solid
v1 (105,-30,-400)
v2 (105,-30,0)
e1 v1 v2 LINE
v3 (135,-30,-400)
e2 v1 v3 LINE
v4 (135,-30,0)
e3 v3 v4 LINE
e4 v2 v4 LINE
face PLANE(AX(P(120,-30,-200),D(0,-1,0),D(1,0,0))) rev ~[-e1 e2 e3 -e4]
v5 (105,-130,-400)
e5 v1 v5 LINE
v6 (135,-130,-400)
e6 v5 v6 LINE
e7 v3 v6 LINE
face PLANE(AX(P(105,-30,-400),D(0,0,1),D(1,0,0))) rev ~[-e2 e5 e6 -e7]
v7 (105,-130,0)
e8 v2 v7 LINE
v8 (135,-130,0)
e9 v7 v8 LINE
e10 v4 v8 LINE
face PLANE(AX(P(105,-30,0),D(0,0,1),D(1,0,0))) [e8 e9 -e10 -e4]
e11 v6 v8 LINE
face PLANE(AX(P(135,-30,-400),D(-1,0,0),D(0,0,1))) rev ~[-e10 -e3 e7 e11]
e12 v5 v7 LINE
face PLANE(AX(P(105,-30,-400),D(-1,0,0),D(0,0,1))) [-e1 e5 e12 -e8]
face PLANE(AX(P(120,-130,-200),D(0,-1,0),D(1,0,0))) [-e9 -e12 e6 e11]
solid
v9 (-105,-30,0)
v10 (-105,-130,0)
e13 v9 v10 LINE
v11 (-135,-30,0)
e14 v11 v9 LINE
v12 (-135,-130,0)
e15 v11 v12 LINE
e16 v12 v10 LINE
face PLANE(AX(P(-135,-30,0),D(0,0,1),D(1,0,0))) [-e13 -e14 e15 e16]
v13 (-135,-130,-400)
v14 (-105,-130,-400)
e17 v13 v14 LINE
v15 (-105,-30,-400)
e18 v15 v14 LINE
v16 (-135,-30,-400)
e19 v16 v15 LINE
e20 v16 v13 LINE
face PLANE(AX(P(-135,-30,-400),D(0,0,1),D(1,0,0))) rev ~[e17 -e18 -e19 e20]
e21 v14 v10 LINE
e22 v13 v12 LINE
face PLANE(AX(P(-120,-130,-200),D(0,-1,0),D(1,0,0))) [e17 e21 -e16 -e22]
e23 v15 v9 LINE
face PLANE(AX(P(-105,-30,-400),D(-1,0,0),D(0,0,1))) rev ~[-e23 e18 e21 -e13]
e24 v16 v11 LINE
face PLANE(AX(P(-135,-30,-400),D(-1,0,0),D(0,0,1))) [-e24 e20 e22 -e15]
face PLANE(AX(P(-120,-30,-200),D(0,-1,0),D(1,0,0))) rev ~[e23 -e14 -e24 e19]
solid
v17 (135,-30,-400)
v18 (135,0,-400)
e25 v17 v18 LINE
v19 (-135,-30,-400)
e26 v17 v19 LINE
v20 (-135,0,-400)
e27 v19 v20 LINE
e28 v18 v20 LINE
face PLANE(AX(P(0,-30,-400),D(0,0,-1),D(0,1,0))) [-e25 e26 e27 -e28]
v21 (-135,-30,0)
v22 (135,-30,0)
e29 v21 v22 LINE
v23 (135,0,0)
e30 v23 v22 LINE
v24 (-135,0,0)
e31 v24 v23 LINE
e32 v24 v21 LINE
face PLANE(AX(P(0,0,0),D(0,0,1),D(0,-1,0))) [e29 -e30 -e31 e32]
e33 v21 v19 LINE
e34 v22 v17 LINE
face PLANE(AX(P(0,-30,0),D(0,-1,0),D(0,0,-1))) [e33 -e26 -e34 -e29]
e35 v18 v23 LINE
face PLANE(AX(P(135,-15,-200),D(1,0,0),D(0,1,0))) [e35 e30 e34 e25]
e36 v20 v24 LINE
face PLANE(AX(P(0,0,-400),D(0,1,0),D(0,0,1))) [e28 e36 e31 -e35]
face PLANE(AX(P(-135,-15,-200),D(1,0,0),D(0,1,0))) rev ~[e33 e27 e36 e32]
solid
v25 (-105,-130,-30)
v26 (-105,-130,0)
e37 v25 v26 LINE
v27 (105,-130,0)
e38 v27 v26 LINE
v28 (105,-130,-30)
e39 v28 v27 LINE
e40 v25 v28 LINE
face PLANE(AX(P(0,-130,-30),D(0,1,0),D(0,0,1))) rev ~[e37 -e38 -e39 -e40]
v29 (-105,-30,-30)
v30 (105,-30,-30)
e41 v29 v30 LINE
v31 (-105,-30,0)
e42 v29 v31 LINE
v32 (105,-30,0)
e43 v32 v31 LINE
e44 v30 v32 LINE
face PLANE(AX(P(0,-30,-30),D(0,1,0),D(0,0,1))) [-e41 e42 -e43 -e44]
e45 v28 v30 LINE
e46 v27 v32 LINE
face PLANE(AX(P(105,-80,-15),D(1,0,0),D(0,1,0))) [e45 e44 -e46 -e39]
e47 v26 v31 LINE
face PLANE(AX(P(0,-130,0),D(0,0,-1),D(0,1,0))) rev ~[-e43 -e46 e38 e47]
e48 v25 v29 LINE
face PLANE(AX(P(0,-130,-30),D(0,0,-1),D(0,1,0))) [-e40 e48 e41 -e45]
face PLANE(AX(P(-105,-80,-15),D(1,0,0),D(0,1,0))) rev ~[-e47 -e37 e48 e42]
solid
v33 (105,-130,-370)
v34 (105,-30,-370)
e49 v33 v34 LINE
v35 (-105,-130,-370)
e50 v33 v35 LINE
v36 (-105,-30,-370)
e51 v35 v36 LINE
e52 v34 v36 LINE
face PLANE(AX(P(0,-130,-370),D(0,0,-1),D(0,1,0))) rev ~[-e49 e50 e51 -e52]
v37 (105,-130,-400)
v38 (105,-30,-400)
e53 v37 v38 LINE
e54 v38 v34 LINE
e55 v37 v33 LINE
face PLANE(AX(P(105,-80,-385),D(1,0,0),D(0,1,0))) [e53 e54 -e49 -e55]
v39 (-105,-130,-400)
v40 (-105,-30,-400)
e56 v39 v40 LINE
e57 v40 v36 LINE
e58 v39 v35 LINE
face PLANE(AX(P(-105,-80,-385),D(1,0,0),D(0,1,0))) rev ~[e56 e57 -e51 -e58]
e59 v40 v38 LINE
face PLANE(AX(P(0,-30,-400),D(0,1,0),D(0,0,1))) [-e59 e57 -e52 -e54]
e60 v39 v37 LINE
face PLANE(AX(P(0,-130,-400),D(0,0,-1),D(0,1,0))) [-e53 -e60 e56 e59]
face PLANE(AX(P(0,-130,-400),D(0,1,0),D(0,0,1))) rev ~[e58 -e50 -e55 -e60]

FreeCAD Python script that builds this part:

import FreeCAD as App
import Part
import Sketcher
Q = App.Units.Quantity


def add_polygon(sketch, points):
    """Adds a closed chain of lines whose ends are joined by coincident constraints."""
    first, n = sketch.GeometryCount, len(points)
    for a, b in zip(points, points[1:] + points[:1]):
        sketch.addGeometry(Part.LineSegment(App.Vector(*a, 0), App.Vector(*b, 0)), False)
    for i in range(n):
        sketch.addConstraint(Sketcher.Constraint("Coincident", first + i, 2, first + (i + 1) % n, 1))

doc = App.newDocument("Part")
params = doc.addObject("Spreadsheet::Sheet", "Params")
for row, (alias, value) in enumerate([
    ("sketch1_width", "30 mm"),
    ("sketch1_height", "400 mm"),
    ("pad1_length", "270 mm"),
    ("sketch2_width", "100 mm"),
    ("sketch2_height", "30 mm"),
    ("pad2_length", "210 mm"),
    ("sketch3_width", "100 mm"),
    ("sketch3_height", "30 mm"),
    ("pad3_length", "210 mm"),
    ("sketch4_width", "30 mm"),
    ("sketch4_height", "400 mm"),
    ("pad4_length", "100 mm"),
    ("sketch5_width", "30 mm"),
    ("sketch5_height", "400 mm"),
    ("pad5_length", "100 mm"),
], start=1):
    params.set(f"A{row}", alias)
    params.set(f"B{row}", "=" + value)
    params.setAlias(f"B{row}", alias)

body = doc.addObject("PartDesign::Body", "Body")

sketch1 = body.newObject("Sketcher::SketchObject", "Sketch")
sketch1.AttachmentSupport = (doc.getObject("YZ_Plane"), [""])
sketch1.MapMode = "FlatFace"
add_polygon(sketch1, [(0, -400), (0, 0), (-30, 0), (-30, -400)])
sketch1.addConstraint([
    Sketcher.Constraint("Vertical", 0),
    Sketcher.Constraint("Horizontal", 1),
    Sketcher.Constraint("Vertical", 2),
    Sketcher.Constraint("Horizontal", 3),
    Sketcher.Constraint("Coincident", 0, 2, -1, 1),
    Sketcher.Constraint("DistanceX", 1, 2, 1, 1, Q("30 mm")),
    Sketcher.Constraint("DistanceY", 0, 1, 0, 2, Q("400 mm")),
])
sketch1.setExpression("Constraints[9]", "Params.sketch1_width")
sketch1.setExpression("Constraints[10]", "Params.sketch1_height")
pad1 = body.newObject("PartDesign::Pad", "Pad")
pad1.Profile = sketch1
pad1.setExpression("Length", "Params.pad1_length")
pad1.Midplane = True
body2 = doc.addObject("PartDesign::Body", "Body001")

sketch2 = body2.newObject("Sketcher::SketchObject", "Sketch001")
sketch2.AttachmentSupport = (doc.getObject("YZ_Plane001"), [""])
sketch2.MapMode = "FlatFace"
add_polygon(sketch2, [(-130, 0), (-130, -30), (-30, -30), (-30, 0)])
sketch2.addConstraint([
    Sketcher.Constraint("Vertical", 0),
    Sketcher.Constraint("Horizontal", 1),
    Sketcher.Constraint("Vertical", 2),
    Sketcher.Constraint("Horizontal", 3),
    Sketcher.Constraint("PointOnObject", 2, 2, -1),
    Sketcher.Constraint("DistanceX", 1, 1, 1, 2, Q("100 mm")),
    Sketcher.Constraint("DistanceY", 0, 2, 0, 1, Q("30 mm")),
    Sketcher.Constraint("DistanceX", 0, 2, -1, 1, Q("130 mm")),
])
sketch2.setExpression("Constraints[9]", "Params.sketch2_width")
sketch2.setExpression("Constraints[10]", "Params.sketch2_height")
pad2 = body2.newObject("PartDesign::Pad", "Pad001")
pad2.Profile = sketch2
pad2.setExpression("Length", "Params.pad2_length")
pad2.Midplane = True
body3 = doc.addObject("PartDesign::Body", "Body002")

sketch3 = body3.newObject("Sketcher::SketchObject", "Sketch002")
sketch3.AttachmentSupport = (doc.getObject("YZ_Plane002"), [""])
sketch3.MapMode = "FlatFace"
add_polygon(sketch3, [(-130, -370), (-130, -400), (-30, -400), (-30, -370)])
sketch3.addConstraint([
    Sketcher.Constraint("Vertical", 0),
    Sketcher.Constraint("Horizontal", 1),
    Sketcher.Constraint("Vertical", 2),
    Sketcher.Constraint("Horizontal", 3),
    Sketcher.Constraint("DistanceX", 1, 1, 1, 2, Q("100 mm")),
    Sketcher.Constraint("DistanceY", 0, 2, 0, 1, Q("30 mm")),
    Sketcher.Constraint("DistanceX", 0, 2, -1, 1, Q("130 mm")),
    Sketcher.Constraint("DistanceY", 0, 2, -1, 1, Q("400 mm")),
])
sketch3.setExpression("Constraints[8]", "Params.sketch3_width")
sketch3.setExpression("Constraints[9]", "Params.sketch3_height")
pad3 = body3.newObject("PartDesign::Pad", "Pad002")
pad3.Profile = sketch3
pad3.setExpression("Length", "Params.pad3_length")
pad3.Midplane = True
body4 = doc.addObject("PartDesign::Body", "Body003")

sketch4 = body4.newObject("Sketcher::SketchObject", "Sketch003")
sketch4.AttachmentSupport = (doc.getObject("XZ_Plane003"), [""])
sketch4.MapMode = "FlatFace"
sketch4.AttachmentOffset = App.Placement(App.Vector(0, 0, 30), App.Rotation())
add_polygon(sketch4, [(-135, 0), (-135, -400), (-105, -400), (-105, 0)])
sketch4.addConstraint([
    Sketcher.Constraint("Vertical", 0),
    Sketcher.Constraint("Horizontal", 1),
    Sketcher.Constraint("Vertical", 2),
    Sketcher.Constraint("Horizontal", 3),
    Sketcher.Constraint("PointOnObject", 2, 2, -1),
    Sketcher.Constraint("DistanceX", 1, 1, 1, 2, Q("30 mm")),
    Sketcher.Constraint("DistanceY", 0, 2, 0, 1, Q("400 mm")),
    Sketcher.Constraint("DistanceX", 0, 2, -1, 1, Q("135 mm")),
])
sketch4.setExpression("Constraints[9]", "Params.sketch4_width")
sketch4.setExpression("Constraints[10]", "Params.sketch4_height")
pad4 = body4.newObject("PartDesign::Pad", "Pad003")
pad4.Profile = sketch4
pad4.setExpression("Length", "Params.pad4_length")
body5 = doc.addObject("PartDesign::Body", "Body004")

sketch5 = body5.newObject("Sketcher::SketchObject", "Sketch004")
sketch5.AttachmentSupport = (doc.getObject("XZ_Plane004"), [""])
sketch5.MapMode = "FlatFace"
sketch5.AttachmentOffset = App.Placement(App.Vector(0, 0, 30), App.Rotation())
add_polygon(sketch5, [(105, 0), (105, -400), (135, -400), (135, 0)])
sketch5.addConstraint([
    Sketcher.Constraint("Vertical", 0),
    Sketcher.Constraint("Horizontal", 1),
    Sketcher.Constraint("Vertical", 2),
    Sketcher.Constraint("Horizontal", 3),
    Sketcher.Constraint("PointOnObject", 2, 2, -1),
    Sketcher.Constraint("DistanceX", 1, 1, 1, 2, Q("30 mm")),
    Sketcher.Constraint("DistanceY", 0, 2, 0, 1, Q("400 mm")),
    Sketcher.Constraint("DistanceX", -1, 1, 0, 2, Q("105 mm")),
])
sketch5.setExpression("Constraints[9]", "Params.sketch5_width")
sketch5.setExpression("Constraints[10]", "Params.sketch5_height")
pad5 = body5.newObject("PartDesign::Pad", "Pad004")
pad5.Profile = sketch5
pad5.setExpression("Length", "Params.pad5_length")

doc.recompute()
